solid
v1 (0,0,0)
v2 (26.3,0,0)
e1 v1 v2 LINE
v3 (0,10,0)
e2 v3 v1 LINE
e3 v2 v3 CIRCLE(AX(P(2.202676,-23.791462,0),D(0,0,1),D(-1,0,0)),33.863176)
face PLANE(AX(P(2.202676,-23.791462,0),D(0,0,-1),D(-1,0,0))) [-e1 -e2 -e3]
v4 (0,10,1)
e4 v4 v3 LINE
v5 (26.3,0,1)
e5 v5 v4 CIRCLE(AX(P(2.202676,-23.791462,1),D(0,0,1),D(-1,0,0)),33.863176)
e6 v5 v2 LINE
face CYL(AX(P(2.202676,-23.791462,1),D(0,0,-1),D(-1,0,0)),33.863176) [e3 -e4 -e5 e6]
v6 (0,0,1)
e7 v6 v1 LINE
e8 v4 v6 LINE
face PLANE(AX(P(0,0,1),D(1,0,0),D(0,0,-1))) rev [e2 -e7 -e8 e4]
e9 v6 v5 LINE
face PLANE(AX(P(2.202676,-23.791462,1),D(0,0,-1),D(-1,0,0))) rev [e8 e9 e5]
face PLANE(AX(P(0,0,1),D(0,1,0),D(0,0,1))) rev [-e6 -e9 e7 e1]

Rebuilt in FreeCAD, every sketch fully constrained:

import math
import FreeCAD as App
import Part
import Sketcher

doc = App.newDocument("Part")
body = doc.addObject("PartDesign::Body", "Body")

# Sketch on XY plane
sketch1 = body.newObject("Sketcher::SketchObject", "Sketch")
sketch1.AttachmentSupport = (doc.getObject("XY_Plane"), [""])
sketch1.MapMode = "FlatFace"
sketch1.addGeometry([
    Part.LineSegment(App.Vector(0, 10, 0), App.Vector(0, 0, 0)),
    Part.LineSegment(App.Vector(0, 0, 0), App.Vector(26, 0, 0)),
    Part.ArcOfCircle(Part.Circle(App.Vector(2, -24, 0), App.Vector(0, 0, 1), 34), math.radians(45), math.radians(94)),
], False)
sketch1.addConstraint([
    Sketcher.Constraint("Coincident", 0, 2, 1, 1),
    Sketcher.Constraint("Coincident", 1, 2, 2, 1),
    Sketcher.Constraint("Coincident", 2, 2, 0, 1),
    Sketcher.Constraint("Vertical", 0),
    Sketcher.Constraint("Horizontal", 1),
    Sketcher.Constraint("Coincident", 0, 2, -1, 1),
    Sketcher.Constraint("DistanceY", 0, 2, 0, 1, 10.0),
    Sketcher.Constraint("DistanceX", 1, 1, 1, 2, 26.3),
    Sketcher.Constraint("Radius", 2, 33.863176),
])
pad1 = body.newObject("PartDesign::Pad", "Pad")
pad1.Profile = sketch1
pad1.Length = 1

doc.recompute()
